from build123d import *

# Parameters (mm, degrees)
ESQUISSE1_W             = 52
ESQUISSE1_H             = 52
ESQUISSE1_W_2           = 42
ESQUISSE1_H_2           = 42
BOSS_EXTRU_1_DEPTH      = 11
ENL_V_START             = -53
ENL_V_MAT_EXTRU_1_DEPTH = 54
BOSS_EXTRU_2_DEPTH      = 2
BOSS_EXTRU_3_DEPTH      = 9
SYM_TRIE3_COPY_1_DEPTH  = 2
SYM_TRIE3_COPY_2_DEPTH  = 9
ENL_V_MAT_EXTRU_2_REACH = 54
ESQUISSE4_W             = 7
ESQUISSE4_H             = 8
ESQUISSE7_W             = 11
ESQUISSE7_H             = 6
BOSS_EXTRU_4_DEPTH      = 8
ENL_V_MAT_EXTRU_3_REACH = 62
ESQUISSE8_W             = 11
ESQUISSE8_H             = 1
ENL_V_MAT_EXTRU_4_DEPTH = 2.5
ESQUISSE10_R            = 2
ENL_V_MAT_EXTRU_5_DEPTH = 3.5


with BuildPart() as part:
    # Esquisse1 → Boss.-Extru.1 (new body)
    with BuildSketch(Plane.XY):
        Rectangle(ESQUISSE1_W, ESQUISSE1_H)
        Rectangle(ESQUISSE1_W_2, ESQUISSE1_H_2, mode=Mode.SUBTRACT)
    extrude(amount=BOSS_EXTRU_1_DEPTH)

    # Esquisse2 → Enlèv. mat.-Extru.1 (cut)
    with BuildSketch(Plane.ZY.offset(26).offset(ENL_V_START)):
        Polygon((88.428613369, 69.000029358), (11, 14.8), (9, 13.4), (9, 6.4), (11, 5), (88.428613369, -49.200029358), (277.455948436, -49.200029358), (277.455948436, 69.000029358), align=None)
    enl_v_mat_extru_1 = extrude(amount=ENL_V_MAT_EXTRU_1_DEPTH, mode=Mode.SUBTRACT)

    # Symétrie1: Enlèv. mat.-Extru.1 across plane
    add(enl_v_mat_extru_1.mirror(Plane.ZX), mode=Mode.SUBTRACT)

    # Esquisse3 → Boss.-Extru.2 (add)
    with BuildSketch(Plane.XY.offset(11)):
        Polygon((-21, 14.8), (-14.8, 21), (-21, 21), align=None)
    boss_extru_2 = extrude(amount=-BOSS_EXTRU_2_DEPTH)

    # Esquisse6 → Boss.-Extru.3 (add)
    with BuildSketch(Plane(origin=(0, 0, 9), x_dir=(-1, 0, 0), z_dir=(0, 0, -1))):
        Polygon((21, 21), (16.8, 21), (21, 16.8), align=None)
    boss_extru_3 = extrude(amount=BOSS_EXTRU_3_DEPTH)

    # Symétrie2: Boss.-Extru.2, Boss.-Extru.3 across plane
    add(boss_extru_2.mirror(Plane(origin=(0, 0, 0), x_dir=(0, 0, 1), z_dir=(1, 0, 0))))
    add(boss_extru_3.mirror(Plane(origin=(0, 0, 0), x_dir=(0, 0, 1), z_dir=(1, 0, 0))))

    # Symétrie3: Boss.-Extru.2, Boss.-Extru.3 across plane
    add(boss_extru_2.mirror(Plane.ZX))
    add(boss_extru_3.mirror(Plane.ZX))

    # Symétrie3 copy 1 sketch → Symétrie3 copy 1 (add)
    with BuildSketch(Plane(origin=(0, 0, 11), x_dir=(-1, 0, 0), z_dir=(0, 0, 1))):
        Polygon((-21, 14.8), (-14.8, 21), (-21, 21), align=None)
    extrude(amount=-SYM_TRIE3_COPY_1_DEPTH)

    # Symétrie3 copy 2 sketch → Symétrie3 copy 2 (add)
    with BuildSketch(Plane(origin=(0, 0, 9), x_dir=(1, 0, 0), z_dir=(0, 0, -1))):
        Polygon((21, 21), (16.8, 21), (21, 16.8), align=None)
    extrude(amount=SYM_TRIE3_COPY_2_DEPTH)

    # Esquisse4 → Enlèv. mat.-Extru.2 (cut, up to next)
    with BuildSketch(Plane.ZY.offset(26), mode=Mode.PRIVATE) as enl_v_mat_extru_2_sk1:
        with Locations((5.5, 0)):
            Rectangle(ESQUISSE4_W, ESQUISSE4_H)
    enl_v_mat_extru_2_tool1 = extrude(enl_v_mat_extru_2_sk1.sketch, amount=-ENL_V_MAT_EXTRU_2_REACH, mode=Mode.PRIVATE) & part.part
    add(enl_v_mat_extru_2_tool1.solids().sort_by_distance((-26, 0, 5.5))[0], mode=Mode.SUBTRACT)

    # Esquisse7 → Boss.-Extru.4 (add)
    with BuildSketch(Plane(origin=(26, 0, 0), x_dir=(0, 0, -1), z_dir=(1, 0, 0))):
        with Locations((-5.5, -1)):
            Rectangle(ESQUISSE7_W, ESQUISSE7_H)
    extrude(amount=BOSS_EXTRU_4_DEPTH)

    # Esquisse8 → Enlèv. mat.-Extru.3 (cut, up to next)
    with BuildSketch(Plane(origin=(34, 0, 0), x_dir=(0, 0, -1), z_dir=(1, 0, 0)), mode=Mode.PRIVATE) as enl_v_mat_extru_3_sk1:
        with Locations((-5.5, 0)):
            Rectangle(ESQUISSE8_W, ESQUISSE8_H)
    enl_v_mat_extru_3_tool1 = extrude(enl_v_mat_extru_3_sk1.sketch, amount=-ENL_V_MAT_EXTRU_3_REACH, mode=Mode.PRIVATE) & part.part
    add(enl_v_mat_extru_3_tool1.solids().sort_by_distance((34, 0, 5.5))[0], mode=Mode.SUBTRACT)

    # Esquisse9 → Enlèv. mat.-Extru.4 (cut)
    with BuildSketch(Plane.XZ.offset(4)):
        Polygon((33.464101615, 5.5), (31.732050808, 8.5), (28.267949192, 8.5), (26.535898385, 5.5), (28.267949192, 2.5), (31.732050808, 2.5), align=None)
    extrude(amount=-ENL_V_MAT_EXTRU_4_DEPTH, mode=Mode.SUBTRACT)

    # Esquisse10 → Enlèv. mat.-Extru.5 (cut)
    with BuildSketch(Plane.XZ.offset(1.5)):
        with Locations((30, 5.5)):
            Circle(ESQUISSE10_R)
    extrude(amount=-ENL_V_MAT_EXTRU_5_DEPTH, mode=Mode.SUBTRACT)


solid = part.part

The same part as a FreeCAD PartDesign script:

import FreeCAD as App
import Part
import Sketcher

V = App.Vector
Q = App.Units.Quantity


def add_polygon(sketch, points):
    """Adds a closed chain of lines whose ends are joined by coincident constraints."""
    first, n = sketch.GeometryCount, len(points)
    for a, b in zip(points, points[1:] + points[:1]):
        sketch.addGeometry(Part.LineSegment(App.Vector(*a, 0), App.Vector(*b, 0)), False)
    for i in range(n):
        sketch.addConstraint(Sketcher.Constraint("Coincident", first + i, 2, first + (i + 1) % n, 1))

doc = App.newDocument("Part")
params = doc.addObject("Spreadsheet::Sheet", "Params")
for row, (alias, value) in enumerate([
    ("sketch1_width", "52 mm"),
    ("sketch1_width2", "42 mm"),
    ("pad1_length", "11 mm"),
    ("sketch2_width", "7 mm"),
    ("pocket1_length", "54 mm"),
    ("sketch3_width", "6.2 mm"),
    ("pad2_length", "2 mm"),
    ("sketch4_width", "4.2 mm"),
    ("pad3_length", "9 mm"),
    ("sketch5_width", "6.2 mm"),
    ("pad4_length", "2 mm"),
    ("sketch6_width", "4.2 mm"),
    ("pad5_length", "9 mm"),
    ("sketch7_width", "8 mm"),
    ("sketch7_height", "7 mm"),
    ("sketch8_width", "6 mm"),
    ("sketch8_height", "11 mm"),
    ("pad6_length", "8 mm"),
    ("sketch9_width", "1 mm"),
    ("sketch9_height", "11 mm"),
    ("pocket4_length", "2.5 mm"),
    ("sketch11_diameter", "4 mm"),
    ("pocket5_length", "3.5 mm"),
], start=1):
    params.set(f"A{row}", alias)
    params.set(f"B{row}", "=" + value)
    params.setAlias(f"B{row}", alias)

body = doc.addObject("PartDesign::Body", "Body")

sketch1 = body.newObject("Sketcher::SketchObject", "Sketch")
sketch1.AttachmentSupport = (doc.getObject("XY_Plane"), [""])
sketch1.MapMode = "FlatFace"
add_polygon(sketch1, [(-26, 26), (-26, -26), (26, -26), (26, 26)])
add_polygon(sketch1, [(21, -21), (-21, -21), (-21, 21), (21, 21)])
sketch1.addConstraint(Sketcher.Constraint("Vertical", 0))
sketch1.addConstraint(Sketcher.Constraint("Horizontal", 1))
sketch1.addConstraint(Sketcher.Constraint("Vertical", 2))
sketch1.addConstraint(Sketcher.Constraint("Horizontal", 3))
sketch1.addConstraint(Sketcher.Constraint("Horizontal", 4))
sketch1.addConstraint(Sketcher.Constraint("Vertical", 5))
sketch1.addConstraint(Sketcher.Constraint("Horizontal", 6))
sketch1.addConstraint(Sketcher.Constraint("Vertical", 7))
sketch1.addConstraint(Sketcher.Constraint("Symmetric", 0, 2, 2, 2, -1, 1))
sketch1.addConstraint(Sketcher.Constraint("Symmetric", 4, 2, 6, 2, -1, 1))
sketch1.addConstraint(Sketcher.Constraint("Equal", 3, 0))
sketch1.addConstraint(Sketcher.Constraint("Equal", 6, 5))
sketch1.addConstraint(Sketcher.Constraint("DistanceX", 1, 1, 1, 2, Q("52 mm")))
sketch1.addConstraint(Sketcher.Constraint("DistanceX", 4, 2, 4, 1, Q("42 mm")))
sketch1.setExpression("Constraints[20]", "Params.sketch1_width")
sketch1.setExpression("Constraints[21]", "Params.sketch1_width2")
pad1 = body.newObject("PartDesign::Pad", "Pad")
pad1.Profile = sketch1
pad1.setExpression("Length", "Params.pad1_length")

sketch2 = body.newObject("Sketcher::SketchObject", "Sketch001")
sketch2.AttachmentSupport = (doc.getObject("YZ_Plane"), [""])
sketch2.MapMode = "FlatFace"
sketch2.AttachmentOffset = App.Placement(V(0, 0, 27), App.Rotation())
add_polygon(sketch2, [(69.000029, 88.428613), (14.8, 11), (13.4, 9), (6.4, 9), (5, 11), (-49.200029, 88.428613), (-49.200029, 277.455948), (69.000029, 277.455948)])
sketch2.addConstraint(Sketcher.Constraint("Horizontal", 2))
sketch2.addConstraint(Sketcher.Constraint("Vertical", 5))
sketch2.addConstraint(Sketcher.Constraint("Horizontal", 6))
sketch2.addConstraint(Sketcher.Constraint("Vertical", 7))
sketch2.addConstraint(Sketcher.Constraint("Parallel", 0, 1))
sketch2.addConstraint(Sketcher.Constraint("Parallel", 3, 4))
sketch2.addConstraint(Sketcher.Constraint("Horizontal", 0, 2, 3, 2))
sketch2.addConstraint(Sketcher.Constraint("Horizontal", 4, 2, 7, 2))
sketch2.addConstraint(Sketcher.Constraint("Equal", 1, 3))
sketch2.addConstraint(Sketcher.Constraint("DistanceX", 2, 2, 2, 1, Q("7 mm")))
sketch2.addConstraint(Sketcher.Constraint("DistanceY", -1, 1, 0, 2, Q("11 mm")))
sketch2.addConstraint(Sketcher.Constraint("DistanceY", -1, 1, 1, 2, Q("9 mm")))
sketch2.addConstraint(Sketcher.Constraint("DistanceX", -1, 1, 3, 2, Q("5 mm")))
sketch2.addConstraint(Sketcher.Constraint("DistanceX", -1, 1, 0, 2, Q("14.8 mm")))
sketch2.addConstraint(Sketcher.Constraint("DistanceX", 6, 1, 6, 2, Q("118.200059 mm")))
sketch2.addConstraint(Sketcher.Constraint("DistanceY", 5, 1, 5, 2, Q("189.027335 mm")))
sketch2.setExpression("Constraints[17]", "Params.sketch2_width")
pocket1 = body.newObject("PartDesign::Pocket", "Pocket")
pocket1.Profile = sketch2
pocket1.setExpression("Length", "Params.pocket1_length")
doc.recompute()

mirrored = body.newObject("PartDesign::Mirrored", "Mirrored")
mirrored.Originals = [pocket1]
mirrored.MirrorPlane = (doc.getObject("XZ_Plane"), [""])
body.Tip = mirrored

sketch3 = body.newObject("Sketcher::SketchObject", "Sketch002")
sketch3.AttachmentSupport = (doc.getObject("XY_Plane"), [""])
sketch3.MapMode = "FlatFace"
sketch3.AttachmentOffset = App.Placement(V(0, 0, 11), App.Rotation())
add_polygon(sketch3, [(-21, 14.8), (-14.8, 21), (-21, 21)])
sketch3.addConstraint(Sketcher.Constraint("Horizontal", 1))
sketch3.addConstraint(Sketcher.Constraint("Vertical", 2))
sketch3.addConstraint(Sketcher.Constraint("Equal", 1, 2))
sketch3.addConstraint(Sketcher.Constraint("DistanceX", 1, 2, 1, 1, Q("6.2 mm")))
sketch3.addConstraint(Sketcher.Constraint("DistanceY", -1, 1, 0, 2, Q("21 mm")))
sketch3.addConstraint(Sketcher.Constraint("DistanceX", 1, 2, -1, 1, Q("21 mm")))
sketch3.setExpression("Constraints[6]", "Params.sketch3_width")
pad2 = body.newObject("PartDesign::Pad", "Pad001")
pad2.Profile = sketch3
pad2.setExpression("Length", "Params.pad2_length")
pad2.Reversed = True

sketch4 = body.newObject("Sketcher::SketchObject", "Sketch003")
sketch4.AttachmentSupport = (doc.getObject("XY_Plane"), [""])
sketch4.MapMode = "FlatFace"
sketch4.AttachmentOffset = App.Placement(V(0, 0, 9), App.Rotation())
add_polygon(sketch4, [(-21, 21), (-16.8, 21), (-21, 16.8)])
sketch4.addConstraint(Sketcher.Constraint("Horizontal", 0))
sketch4.addConstraint(Sketcher.Constraint("Vertical", 2))
sketch4.addConstraint(Sketcher.Constraint("Equal", 0, 2))
sketch4.addConstraint(Sketcher.Constraint("DistanceX", 0, 1, 0, 2, Q("4.2 mm")))
sketch4.addConstraint(Sketcher.Constraint("DistanceY", -1, 1, 0, 2, Q("21 mm")))
sketch4.addConstraint(Sketcher.Constraint("DistanceX", 1, 2, -1, 1, Q("21 mm")))
sketch4.setExpression("Constraints[6]", "Params.sketch4_width")
pad3 = body.newObject("PartDesign::Pad", "Pad002")
pad3.Profile = sketch4
pad3.setExpression("Length", "Params.pad3_length")
pad3.Reversed = True
doc.recompute()

mirrored2 = body.newObject("PartDesign::Mirrored", "Mirrored001")
mirrored2.Originals = [pad2, pad3]
mirrored2.MirrorPlane = (doc.getObject("YZ_Plane"), [""])
body.Tip = mirrored2
doc.recompute()

mirrored3 = body.newObject("PartDesign::Mirrored", "Mirrored002")
mirrored3.Originals = [pad2, pad3]
mirrored3.MirrorPlane = (doc.getObject("XZ_Plane"), [""])
body.Tip = mirrored3

sketch5 = body.newObject("Sketcher::SketchObject", "Sketch004")
sketch5.AttachmentSupport = (doc.getObject("XY_Plane"), [""])
sketch5.MapMode = "FlatFace"
sketch5.AttachmentOffset = App.Placement(V(0, 0, 11), App.Rotation())
add_polygon(sketch5, [(21, -14.8), (14.8, -21), (21, -21)])
sketch5.addConstraint(Sketcher.Constraint("Horizontal", 1))
sketch5.addConstraint(Sketcher.Constraint("Vertical", 2))
sketch5.addConstraint(Sketcher.Constraint("Equal", 1, 2))
sketch5.addConstraint(Sketcher.Constraint("DistanceX", 1, 1, 1, 2, Q("6.2 mm")))
sketch5.addConstraint(Sketcher.Constraint("DistanceY", 0, 2, -1, 1, Q("21 mm")))
sketch5.addConstraint(Sketcher.Constraint("DistanceX", -1, 1, 1, 2, Q("21 mm")))
sketch5.setExpression("Constraints[6]", "Params.sketch5_width")
pad4 = body.newObject("PartDesign::Pad", "Pad003")
pad4.Profile = sketch5
pad4.setExpression("Length", "Params.pad4_length")
pad4.Reversed = True

sketch6 = body.newObject("Sketcher::SketchObject", "Sketch005")
sketch6.AttachmentSupport = (doc.getObject("XY_Plane"), [""])
sketch6.MapMode = "FlatFace"
sketch6.AttachmentOffset = App.Placement(V(0, 0, 9), App.Rotation())
add_polygon(sketch6, [(21, -21), (16.8, -21), (21, -16.8)])
sketch6.addConstraint(Sketcher.Constraint("Horizontal", 0))
sketch6.addConstraint(Sketcher.Constraint("Vertical", 2))
sketch6.addConstraint(Sketcher.Constraint("Equal", 0, 2))
sketch6.addConstraint(Sketcher.Constraint("DistanceX", 0, 2, 0, 1, Q("4.2 mm")))
sketch6.addConstraint(Sketcher.Constraint("DistanceY", 0, 2, -1, 1, Q("21 mm")))
sketch6.addConstraint(Sketcher.Constraint("DistanceX", -1, 1, 1, 2, Q("21 mm")))
sketch6.setExpression("Constraints[6]", "Params.sketch6_width")
pad5 = body.newObject("PartDesign::Pad", "Pad004")
pad5.Profile = sketch6
pad5.setExpression("Length", "Params.pad5_length")
pad5.Reversed = True

sketch7 = body.newObject("Sketcher::SketchObject", "Sketch006")
sketch7.AttachmentSupport = (doc.getObject("YZ_Plane"), [""])
sketch7.MapMode = "FlatFace"
sketch7.AttachmentOffset = App.Placement(V(0, 0, -26), App.Rotation())
add_polygon(sketch7, [(4, 2), (-4, 2), (-4, 9), (4, 9)])
sketch7.addConstraint(Sketcher.Constraint("Horizontal", 0))
sketch7.addConstraint(Sketcher.Constraint("Vertical", 1))
sketch7.addConstraint(Sketcher.Constraint("Horizontal", 2))
sketch7.addConstraint(Sketcher.Constraint("Vertical", 3))
sketch7.addConstraint(Sketcher.Constraint("DistanceX", 0, 2, 0, 1, Q("8 mm")))
sketch7.addConstraint(Sketcher.Constraint("DistanceY", 1, 1, 1, 2, Q("7 mm")))
sketch7.addConstraint(Sketcher.Constraint("DistanceX", 0, 2, -1, 1, Q("4 mm")))
sketch7.addConstraint(Sketcher.Constraint("DistanceY", -1, 1, 0, 2, Q("2 mm")))
sketch7.setExpression("Constraints[8]", "Params.sketch7_width")
sketch7.setExpression("Constraints[9]", "Params.sketch7_height")
pocket2 = body.newObject("PartDesign::Pocket", "Pocket001")
pocket2.Profile = sketch7
pocket2.Type = "UpToFirst"
pocket2.Reversed = True

sketch8 = body.newObject("Sketcher::SketchObject", "Sketch007")
sketch8.AttachmentSupport = (doc.getObject("YZ_Plane"), [""])
sketch8.MapMode = "FlatFace"
sketch8.AttachmentOffset = App.Placement(V(0, 0, 26), App.Rotation())
add_polygon(sketch8, [(2, 11), (-4, 11), (-4, 0), (2, 0)])
sketch8.addConstraint(Sketcher.Constraint("Horizontal", 0))
sketch8.addConstraint(Sketcher.Constraint("Vertical", 1))
sketch8.addConstraint(Sketcher.Constraint("Horizontal", 2))
sketch8.addConstraint(Sketcher.Constraint("Vertical", 3))
sketch8.addConstraint(Sketcher.Constraint("PointOnObject", 1, 2, -1))
sketch8.addConstraint(Sketcher.Constraint("DistanceX", 0, 2, 0, 1, Q("6 mm")))
sketch8.addConstraint(Sketcher.Constraint("DistanceY", 1, 2, 1, 1, Q("11 mm")))
sketch8.addConstraint(Sketcher.Constraint("DistanceX", 0, 2, -1, 1, Q("4 mm")))
sketch8.setExpression("Constraints[9]", "Params.sketch8_width")
sketch8.setExpression("Constraints[10]", "Params.sketch8_height")
pad6 = body.newObject("PartDesign::Pad", "Pad005")
pad6.Profile = sketch8
pad6.setExpression("Length", "Params.pad6_length")

sketch9 = body.newObject("Sketcher::SketchObject", "Sketch008")
sketch9.AttachmentSupport = (doc.getObject("YZ_Plane"), [""])
sketch9.MapMode = "FlatFace"
sketch9.AttachmentOffset = App.Placement(V(0, 0, 34), App.Rotation())
add_polygon(sketch9, [(0.5, 11), (-0.5, 11), (-0.5, 0), (0.5, 0)])
sketch9.addConstraint(Sketcher.Constraint("Horizontal", 0))
sketch9.addConstraint(Sketcher.Constraint("Vertical", 1))
sketch9.addConstraint(Sketcher.Constraint("Horizontal", 2))
sketch9.addConstraint(Sketcher.Constraint("Vertical", 3))
sketch9.addConstraint(Sketcher.Constraint("Symmetric", 1, 2, 2, 2, -1, 1))
sketch9.addConstraint(Sketcher.Constraint("DistanceX", 0, 2, 0, 1, Q("1 mm")))
sketch9.addConstraint(Sketcher.Constraint("DistanceY", 1, 2, 1, 1, Q("11 mm")))
sketch9.setExpression("Constraints[9]", "Params.sketch9_width")
sketch9.setExpression("Constraints[10]", "Params.sketch9_height")
pocket3 = body.newObject("PartDesign::Pocket", "Pocket002")
pocket3.Profile = sketch9
pocket3.Type = "UpToFirst"

sketch10 = body.newObject("Sketcher::SketchObject", "Sketch009")
sketch10.AttachmentSupport = (doc.getObject("XZ_Plane"), [""])
sketch10.MapMode = "FlatFace"
sketch10.AttachmentOffset = App.Placement(V(0, 0, 4), App.Rotation())
add_polygon(sketch10, [(33.464102, 5.5), (31.732051, 8.5), (28.267949, 8.5), (26.535898, 5.5), (28.267949, 2.5), (31.732051, 2.5)])
sketch10.addConstraint(Sketcher.Constraint("Horizontal", 1))
sketch10.addConstraint(Sketcher.Constraint("Horizontal", 4))
sketch10.addConstraint(Sketcher.Constraint("Parallel", 0, 3))
sketch10.addConstraint(Sketcher.Constraint("Parallel", 2, 5))
sketch10.addConstraint(Sketcher.Constraint("Horizontal", 2, 2, 5, 2))
sketch10.addConstraint(Sketcher.Constraint("Vertical", 1, 2, 3, 2))
sketch10.addConstraint(Sketcher.Constraint("Vertical", 0, 2, 4, 2))
sketch10.addConstraint(Sketcher.Constraint("Angle", 0, Q("120 deg")))
sketch10.addConstraint(Sketcher.Constraint("DistanceY", 2, 2, 1, 2, Q("3 mm")))
sketch10.addConstraint(Sketcher.Constraint("DistanceY", -1, 1, 0, 2, Q("8.5 mm")))
sketch10.addConstraint(Sketcher.Constraint("DistanceX", 1, 2, 1, 1, Q("3.464102 mm")))
sketch10.addConstraint(Sketcher.Constraint("DistanceX", -1, 1, 2, 2, Q("26.535898 mm")))
pocket4 = body.newObject("PartDesign::Pocket", "Pocket003")
pocket4.Profile = sketch10
pocket4.setExpression("Length", "Params.pocket4_length")

sketch11 = body.newObject("Sketcher::SketchObject", "Sketch010")
sketch11.AttachmentSupport = (doc.getObject("XZ_Plane"), [""])
sketch11.MapMode = "FlatFace"
sketch11.AttachmentOffset = App.Placement(V(0, 0, 1.5), App.Rotation())
sketch11.addGeometry(Part.Circle(V(30, 5.5, 0), V(0, 0, 1), 2), False)
sketch11.addConstraint(Sketcher.Constraint("Diameter", 0, Q("4 mm")))
sketch11.addConstraint(Sketcher.Constraint("DistanceX", -1, 1, 0, 3, Q("30 mm")))
sketch11.addConstraint(Sketcher.Constraint("DistanceY", -1, 1, 0, 3, Q("5.5 mm")))
sketch11.setExpression("Constraints[0]", "Params.sketch11_diameter")
pocket5 = body.newObject("PartDesign::Pocket", "Pocket004")
pocket5.Profile = sketch11
pocket5.setExpression("Length", "Params.pocket5_length")

doc.recompute()
